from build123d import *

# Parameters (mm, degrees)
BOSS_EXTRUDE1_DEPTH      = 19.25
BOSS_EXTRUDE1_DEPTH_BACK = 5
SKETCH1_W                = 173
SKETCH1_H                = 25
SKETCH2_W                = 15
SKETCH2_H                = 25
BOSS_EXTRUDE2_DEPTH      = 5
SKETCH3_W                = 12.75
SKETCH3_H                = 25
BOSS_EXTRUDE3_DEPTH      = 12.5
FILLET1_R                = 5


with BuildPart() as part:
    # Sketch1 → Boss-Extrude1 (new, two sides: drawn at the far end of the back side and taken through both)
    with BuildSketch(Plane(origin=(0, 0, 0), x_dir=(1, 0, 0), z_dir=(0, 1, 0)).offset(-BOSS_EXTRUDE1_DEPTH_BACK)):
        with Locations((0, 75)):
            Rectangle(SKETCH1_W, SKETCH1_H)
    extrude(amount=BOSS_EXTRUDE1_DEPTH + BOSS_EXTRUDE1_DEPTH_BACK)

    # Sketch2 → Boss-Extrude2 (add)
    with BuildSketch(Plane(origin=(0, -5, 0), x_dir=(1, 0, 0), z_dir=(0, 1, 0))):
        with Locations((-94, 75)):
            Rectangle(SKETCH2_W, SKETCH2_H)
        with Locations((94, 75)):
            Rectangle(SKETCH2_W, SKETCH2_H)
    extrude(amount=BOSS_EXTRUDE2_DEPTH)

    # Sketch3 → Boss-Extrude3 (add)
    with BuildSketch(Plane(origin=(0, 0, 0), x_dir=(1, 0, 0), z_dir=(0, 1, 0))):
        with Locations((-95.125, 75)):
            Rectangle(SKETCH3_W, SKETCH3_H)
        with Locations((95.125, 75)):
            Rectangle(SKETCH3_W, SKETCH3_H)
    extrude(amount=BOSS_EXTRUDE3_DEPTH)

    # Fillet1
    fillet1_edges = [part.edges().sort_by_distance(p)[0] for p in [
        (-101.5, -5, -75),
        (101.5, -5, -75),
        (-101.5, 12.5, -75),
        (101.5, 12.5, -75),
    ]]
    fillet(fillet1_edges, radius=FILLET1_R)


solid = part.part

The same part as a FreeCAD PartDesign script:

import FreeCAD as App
import Part
import Sketcher

V = App.Vector
Q = App.Units.Quantity


def edges_at(feature, points):
    """Names of the edges that pass closest to the given points."""
    edges = feature.Shape.Edges
    near = lambda p: min(range(len(edges)), key=lambda i: edges[i].distToShape(Part.Vertex(*p))[0])
    return sorted({f"Edge{near(p) + 1}" for p in points})

doc = App.newDocument("Part")
body = doc.addObject("PartDesign::Body", "Body")

# Sketch on XZ plane
sketch1 = doc.addObject("Sketcher::SketchObject", "Sketch")
body.addObject(sketch1)
sketch1.AttachmentSupport = (doc.XZ_Plane, [""])
sketch1.MapMode = "FlatFace"
sketch1.addGeometry([
    Part.LineSegment(V(-86, -88, 0), V(-86, -62, 0)),
    Part.LineSegment(V(-86, -62, 0), V(86, -62, 0)),
    Part.LineSegment(V(86, -62, 0), V(86, -88, 0)),
    Part.LineSegment(V(86, -88, 0), V(-86, -88, 0)),
], False)
sketch1.addConstraint([
    Sketcher.Constraint("Coincident", 0, 2, 1, 1),
    Sketcher.Constraint("Coincident", 1, 2, 2, 1),
    Sketcher.Constraint("Coincident", 2, 2, 3, 1),
    Sketcher.Constraint("Coincident", 3, 2, 0, 1),
    Sketcher.Constraint("Vertical", 0),
    Sketcher.Constraint("Horizontal", 1),
    Sketcher.Constraint("Vertical", 2),
    Sketcher.Constraint("Horizontal", 3),
    Sketcher.Constraint("DistanceX", 1, 1, 1, 2, Q("173 mm")),
    Sketcher.Constraint("DistanceY", 0, 1, 0, 2, Q("25 mm")),
    Sketcher.Constraint("DistanceX", 0, 2, -1, 1, Q("86.5 mm")),
    Sketcher.Constraint("DistanceY", 0, 2, -1, 1, Q("62.5 mm")),
])
pad1 = doc.addObject("PartDesign::Pad", "Pad")
body.addObject(pad1)
pad1.Profile = sketch1
pad1.Type = "TwoLengths"
pad1.Length = 19.25
pad1.Length2 = 5
pad1.Reversed = True

# Sketch on XZ plane
sketch2 = doc.addObject("Sketcher::SketchObject", "Sketch001")
body.addObject(sketch2)
sketch2.AttachmentSupport = (doc.XZ_Plane, [""])
sketch2.MapMode = "FlatFace"
sketch2.AttachmentOffset = App.Placement(V(0, 0, 5), App.Rotation())
sketch2.addGeometry([
    Part.LineSegment(V(-102, -88, 0), V(-102, -62, 0)),  # 0
    Part.LineSegment(V(-102, -62, 0), V(-86, -62, 0)),  # 1
    Part.LineSegment(V(-86, -62, 0), V(-86, -88, 0)),  # 2
    Part.LineSegment(V(-86, -88, 0), V(-102, -88, 0)),  # 3
    Part.LineSegment(V(86, -88, 0), V(86, -62, 0)),  # 4
    Part.LineSegment(V(86, -62, 0), V(102, -62, 0)),  # 5
    Part.LineSegment(V(102, -62, 0), V(102, -88, 0)),  # 6
    Part.LineSegment(V(102, -88, 0), V(86, -88, 0)),  # 7
], False)
sketch2.addConstraint([
    Sketcher.Constraint("Coincident", 0, 2, 1, 1),
    Sketcher.Constraint("Coincident", 1, 2, 2, 1),
    Sketcher.Constraint("Coincident", 2, 2, 3, 1),
    Sketcher.Constraint("Coincident", 3, 2, 0, 1),
    Sketcher.Constraint("Coincident", 4, 2, 5, 1),
    Sketcher.Constraint("Coincident", 5, 2, 6, 1),
    Sketcher.Constraint("Coincident", 6, 2, 7, 1),
    Sketcher.Constraint("Coincident", 7, 2, 4, 1),
    Sketcher.Constraint("Vertical", 0),
    Sketcher.Constraint("Horizontal", 1),
    Sketcher.Constraint("Vertical", 2),
    Sketcher.Constraint("Horizontal", 3),
    Sketcher.Constraint("Vertical", 4),
    Sketcher.Constraint("Horizontal", 5),
    Sketcher.Constraint("Vertical", 6),
    Sketcher.Constraint("Horizontal", 7),
    Sketcher.Constraint("Symmetric", 1, 2, 4, 2, -2),
    Sketcher.Constraint("Symmetric", 3, 2, 6, 2, -2),
    Sketcher.Constraint("DistanceX", 1, 1, 1, 2, Q("15 mm")),
    Sketcher.Constraint("DistanceY", 0, 1, 0, 2, Q("25 mm")),
    Sketcher.Constraint("DistanceX", 1, 2, 4, 2, Q("173 mm")),
    Sketcher.Constraint("DistanceY", 0, 2, -1, 1, Q("62.5 mm")),
])
pad2 = doc.addObject("PartDesign::Pad", "Pad001")
body.addObject(pad2)
pad2.Profile = sketch2
pad2.Length = 5
pad2.Reversed = True

# Sketch on XZ plane
sketch3 = doc.addObject("Sketcher::SketchObject", "Sketch002")
body.addObject(sketch3)
sketch3.AttachmentSupport = (doc.XZ_Plane, [""])
sketch3.MapMode = "FlatFace"
sketch3.addGeometry([
    Part.LineSegment(V(-102, -88, 0), V(-102, -62, 0)),  # 0
    Part.LineSegment(V(-102, -62, 0), V(-89, -62, 0)),  # 1
    Part.LineSegment(V(-89, -62, 0), V(-89, -88, 0)),  # 2
    Part.LineSegment(V(-89, -88, 0), V(-102, -88, 0)),  # 3
    Part.LineSegment(V(89, -88, 0), V(89, -62, 0)),  # 4
    Part.LineSegment(V(89, -62, 0), V(102, -62, 0)),  # 5
    Part.LineSegment(V(102, -62, 0), V(102, -88, 0)),  # 6
    Part.LineSegment(V(102, -88, 0), V(89, -88, 0)),  # 7
], False)
sketch3.addConstraint([
    Sketcher.Constraint("Coincident", 0, 2, 1, 1),
    Sketcher.Constraint("Coincident", 1, 2, 2, 1),
    Sketcher.Constraint("Coincident", 2, 2, 3, 1),
    Sketcher.Constraint("Coincident", 3, 2, 0, 1),
    Sketcher.Constraint("Coincident", 4, 2, 5, 1),
    Sketcher.Constraint("Coincident", 5, 2, 6, 1),
    Sketcher.Constraint("Coincident", 6, 2, 7, 1),
    Sketcher.Constraint("Coincident", 7, 2, 4, 1),
    Sketcher.Constraint("Vertical", 0),
    Sketcher.Constraint("Horizontal", 1),
    Sketcher.Constraint("Vertical", 2),
    Sketcher.Constraint("Horizontal", 3),
    Sketcher.Constraint("Vertical", 4),
    Sketcher.Constraint("Horizontal", 5),
    Sketcher.Constraint("Vertical", 6),
    Sketcher.Constraint("Horizontal", 7),
    Sketcher.Constraint("Symmetric", 1, 2, 4, 2, -2),
    Sketcher.Constraint("Symmetric", 3, 2, 6, 2, -2),
    Sketcher.Constraint("DistanceY", 0, 1, 0, 2, Q("25 mm")),
    Sketcher.Constraint("DistanceX", 0, 2, 5, 2, Q("203 mm")),
    Sketcher.Constraint("DistanceX", 1, 1, 1, 2, Q("12.75 mm")),
    Sketcher.Constraint("DistanceY", 0, 2, -1, 1, Q("62.5 mm")),
])
pad3 = doc.addObject("PartDesign::Pad", "Pad002")
body.addObject(pad3)
pad3.Profile = sketch3
pad3.Length = 12.5
pad3.Reversed = True
doc.recompute()

fillet = doc.addObject("PartDesign::Fillet", "Fillet")
body.addObject(fillet)
fillet.Base = (pad3, edges_at(pad3, [
    (-101.5, -5, -75),
    (101.5, -5, -75),
    (-101.5, 12.5, -75),
    (101.5, 12.5, -75),
]))
fillet.Radius = 5

doc.recompute()
